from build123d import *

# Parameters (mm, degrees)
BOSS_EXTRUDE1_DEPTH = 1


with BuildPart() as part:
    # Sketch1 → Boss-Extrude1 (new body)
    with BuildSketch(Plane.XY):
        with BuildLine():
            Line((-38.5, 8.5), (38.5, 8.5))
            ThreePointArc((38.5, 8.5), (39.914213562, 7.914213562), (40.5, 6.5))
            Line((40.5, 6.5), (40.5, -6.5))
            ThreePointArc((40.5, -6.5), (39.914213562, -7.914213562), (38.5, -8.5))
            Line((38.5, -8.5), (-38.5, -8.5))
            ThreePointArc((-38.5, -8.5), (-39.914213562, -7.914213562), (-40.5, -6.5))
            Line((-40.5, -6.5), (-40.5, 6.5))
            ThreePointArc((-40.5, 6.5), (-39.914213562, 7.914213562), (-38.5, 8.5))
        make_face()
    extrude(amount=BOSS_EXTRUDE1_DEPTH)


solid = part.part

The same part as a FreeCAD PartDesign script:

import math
import FreeCAD as App
import Part
import Sketcher

doc = App.newDocument("Part")
body = doc.addObject("PartDesign::Body", "Body")

sketch1 = doc.addObject("Sketcher::SketchObject", "Sketch")
body.addObject(sketch1)
sketch1.AttachmentSupport = (doc.XY_Plane, [""])
sketch1.MapMode = "FlatFace"
sketch1.addGeometry(Part.LineSegment(App.Vector(38.5, 8.5, 0), App.Vector(-38.5, 8.5, 0)), False)
sketch1.addGeometry(Part.ArcOfCircle(Part.Circle(App.Vector(-38.5, 6.5, 0), App.Vector(0, 0, 1), 2), math.radians(90), math.radians(180)), False)
sketch1.addGeometry(Part.LineSegment(App.Vector(-40.5, 6.5, 0), App.Vector(-40.5, -6.5, 0)), False)
sketch1.addGeometry(Part.ArcOfCircle(Part.Circle(App.Vector(-38.5, -6.5, 0), App.Vector(0, 0, 1), 2), math.radians(-180), math.radians(-90)), False)
sketch1.addGeometry(Part.LineSegment(App.Vector(-38.5, -8.5, 0), App.Vector(38.5, -8.5, 0)), False)
sketch1.addGeometry(Part.ArcOfCircle(Part.Circle(App.Vector(38.5, -6.5, 0), App.Vector(0, 0, 1), 2), math.radians(-90), math.radians(0)), False)
sketch1.addGeometry(Part.LineSegment(App.Vector(40.5, -6.5, 0), App.Vector(40.5, 6.5, 0)), False)
sketch1.addGeometry(Part.ArcOfCircle(Part.Circle(App.Vector(38.5, 6.5, 0), App.Vector(0, 0, 1), 2), math.radians(0), math.radians(90)), False)
sketch1.addConstraint(Sketcher.Constraint("Tangent", 0, 2, 1, 1))
sketch1.addConstraint(Sketcher.Constraint("Tangent", 1, 2, 2, 1))
sketch1.addConstraint(Sketcher.Constraint("Tangent", 2, 2, 3, 1))
sketch1.addConstraint(Sketcher.Constraint("Tangent", 3, 2, 4, 1))
sketch1.addConstraint(Sketcher.Constraint("Tangent", 4, 2, 5, 1))
sketch1.addConstraint(Sketcher.Constraint("Tangent", 5, 2, 6, 1))
sketch1.addConstraint(Sketcher.Constraint("Tangent", 6, 2, 7, 1))
sketch1.addConstraint(Sketcher.Constraint("Tangent", 7, 2, 0, 1))
sketch1.addConstraint(Sketcher.Constraint("Horizontal", 0))
sketch1.addConstraint(Sketcher.Constraint("Vertical", 2))
sketch1.addConstraint(Sketcher.Constraint("Horizontal", 4))
sketch1.addConstraint(Sketcher.Constraint("Vertical", 6))
sketch1.addConstraint(Sketcher.Constraint("Equal", 1, 3))
sketch1.addConstraint(Sketcher.Constraint("Equal", 3, 5))
sketch1.addConstraint(Sketcher.Constraint("Equal", 5, 7))
sketch1.addConstraint(Sketcher.Constraint("Symmetric", 1, 3, 5, 3, -1, 1))
sketch1.addConstraint(Sketcher.Constraint("Radius", 1, 2.0))
sketch1.addConstraint(Sketcher.Constraint("DistanceX", 0, 2, 0, 1, 77.0))
sketch1.addConstraint(Sketcher.Constraint("DistanceY", 2, 2, 2, 1, 13.0))
pad1 = doc.addObject("PartDesign::Pad", "Pad")
body.addObject(pad1)
pad1.Profile = sketch1
pad1.Length = 1

doc.recompute()
